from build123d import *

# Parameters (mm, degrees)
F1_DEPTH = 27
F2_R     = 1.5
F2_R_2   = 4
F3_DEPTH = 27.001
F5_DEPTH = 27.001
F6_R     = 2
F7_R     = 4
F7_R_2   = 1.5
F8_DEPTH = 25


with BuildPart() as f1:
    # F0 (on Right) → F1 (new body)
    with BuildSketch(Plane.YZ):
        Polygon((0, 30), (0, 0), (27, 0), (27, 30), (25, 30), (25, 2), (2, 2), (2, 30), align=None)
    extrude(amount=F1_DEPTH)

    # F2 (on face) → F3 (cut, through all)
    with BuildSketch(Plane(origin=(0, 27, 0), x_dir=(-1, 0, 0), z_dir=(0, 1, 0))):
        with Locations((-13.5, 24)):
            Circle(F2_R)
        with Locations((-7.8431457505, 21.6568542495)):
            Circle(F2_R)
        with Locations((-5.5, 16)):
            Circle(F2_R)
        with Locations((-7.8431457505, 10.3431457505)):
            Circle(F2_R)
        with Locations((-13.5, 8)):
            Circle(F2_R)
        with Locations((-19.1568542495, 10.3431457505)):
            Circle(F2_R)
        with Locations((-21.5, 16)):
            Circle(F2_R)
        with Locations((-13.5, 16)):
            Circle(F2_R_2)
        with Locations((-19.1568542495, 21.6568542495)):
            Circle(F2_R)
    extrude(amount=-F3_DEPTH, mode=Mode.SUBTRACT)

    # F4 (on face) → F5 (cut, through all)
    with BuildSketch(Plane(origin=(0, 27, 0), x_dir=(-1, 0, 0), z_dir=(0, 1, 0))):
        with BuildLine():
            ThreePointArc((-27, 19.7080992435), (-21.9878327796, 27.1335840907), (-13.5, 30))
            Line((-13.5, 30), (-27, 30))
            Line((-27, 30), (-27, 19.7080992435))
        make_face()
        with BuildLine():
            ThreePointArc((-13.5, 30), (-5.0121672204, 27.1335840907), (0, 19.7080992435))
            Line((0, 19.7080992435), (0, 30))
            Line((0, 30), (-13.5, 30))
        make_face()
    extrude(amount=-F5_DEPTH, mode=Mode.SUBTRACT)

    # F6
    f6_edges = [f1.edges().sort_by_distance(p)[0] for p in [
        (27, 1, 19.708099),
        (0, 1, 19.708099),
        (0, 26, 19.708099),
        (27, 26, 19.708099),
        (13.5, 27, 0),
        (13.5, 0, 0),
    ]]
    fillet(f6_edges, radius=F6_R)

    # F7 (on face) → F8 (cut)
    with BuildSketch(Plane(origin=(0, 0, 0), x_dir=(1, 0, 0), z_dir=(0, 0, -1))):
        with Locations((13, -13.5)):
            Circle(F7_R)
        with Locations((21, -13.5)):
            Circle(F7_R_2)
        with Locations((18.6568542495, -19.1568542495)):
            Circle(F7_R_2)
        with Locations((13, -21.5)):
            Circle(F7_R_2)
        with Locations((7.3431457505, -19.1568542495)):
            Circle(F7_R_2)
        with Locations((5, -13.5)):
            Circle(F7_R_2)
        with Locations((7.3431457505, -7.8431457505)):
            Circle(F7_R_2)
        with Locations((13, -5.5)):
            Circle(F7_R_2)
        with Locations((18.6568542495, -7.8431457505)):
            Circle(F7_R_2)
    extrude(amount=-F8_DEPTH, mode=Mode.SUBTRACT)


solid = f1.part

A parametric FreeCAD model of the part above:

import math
import FreeCAD as App
import Part
import Sketcher

V = App.Vector


def edges_at(feature, points):
    """Names of the edges that pass closest to the given points."""
    edges = feature.Shape.Edges
    near = lambda p: min(range(len(edges)), key=lambda i: edges[i].distToShape(Part.Vertex(*p))[0])
    return sorted({f"Edge{near(p) + 1}" for p in points})


def add_polygon(sketch, points):
    """Adds a closed chain of lines whose ends are joined by coincident constraints."""
    first, n = sketch.GeometryCount, len(points)
    for a, b in zip(points, points[1:] + points[:1]):
        sketch.addGeometry(Part.LineSegment(App.Vector(*a, 0), App.Vector(*b, 0)), False)
    for i in range(n):
        sketch.addConstraint(Sketcher.Constraint("Coincident", first + i, 2, first + (i + 1) % n, 1))

doc = App.newDocument("Part")
body = doc.addObject("PartDesign::Body", "Body")

# Sketch on YZ plane
sketch1 = body.newObject("Sketcher::SketchObject", "Sketch")
sketch1.AttachmentSupport = (doc.getObject("YZ_Plane"), [""])
sketch1.MapMode = "FlatFace"
add_polygon(sketch1, [(0, 30), (0, 0), (27, 0), (27, 30), (25, 30), (25, 2), (2, 2), (2, 30)])  # lines 0-7
sketch1.addConstraint([
    Sketcher.Constraint("Vertical", 0),
    Sketcher.Constraint("Horizontal", 1),
    Sketcher.Constraint("Vertical", 2),
    Sketcher.Constraint("Horizontal", 3),
    Sketcher.Constraint("Vertical", 4),
    Sketcher.Constraint("Horizontal", 5),
    Sketcher.Constraint("Vertical", 6),
    Sketcher.Constraint("Horizontal", 7),
    Sketcher.Constraint("Coincident", 0, 2, -1, 1),
    Sketcher.Constraint("Horizontal", 3, 2, 6, 2),
    Sketcher.Constraint("Equal", 3, 7),
    Sketcher.Constraint("DistanceX", 1, 1, 1, 2, 27.0),
    Sketcher.Constraint("DistanceX", 3, 2, 3, 1, 2.0),
    Sketcher.Constraint("DistanceY", 0, 2, 0, 1, 30.0),
    Sketcher.Constraint("DistanceY", 4, 2, 4, 1, 28.0),
])
pad1 = body.newObject("PartDesign::Pad", "Pad")
pad1.Profile = sketch1
pad1.Length = 27

# Sketch on XZ plane
sketch2 = body.newObject("Sketcher::SketchObject", "Sketch001")
sketch2.AttachmentSupport = (doc.getObject("XZ_Plane"), [""])
sketch2.MapMode = "FlatFace"
sketch2.AttachmentOffset = App.Placement(V(0, 0, -27), App.Rotation())
sketch2.addGeometry([
    Part.Circle(V(13.5, 24, 0), V(0, 0, 1), 1.5),  # 0
    Part.Circle(V(7.8, 21.7, 0), V(0, 0, 1), 1.5),  # 1
    Part.Circle(V(5.5, 16, 0), V(0, 0, 1), 1.5),  # 2
    Part.Circle(V(7.8, 10.3, 0), V(0, 0, 1), 1.5),  # 3
    Part.Circle(V(13.5, 8, 0), V(0, 0, 1), 1.5),  # 4
    Part.Circle(V(19.2, 10.3, 0), V(0, 0, 1), 1.5),  # 5
    Part.Circle(V(21.5, 16, 0), V(0, 0, 1), 1.5),  # 6
    Part.Circle(V(13.5, 16, 0), V(0, 0, 1), 4),  # 7
    Part.Circle(V(19.2, 21.7, 0), V(0, 0, 1), 1.5),  # 8
], False)
sketch2.addConstraint([
    Sketcher.Constraint("Equal", 0, 1),
    Sketcher.Constraint("Equal", 1, 2),
    Sketcher.Constraint("Equal", 2, 3),
    Sketcher.Constraint("Equal", 3, 4),
    Sketcher.Constraint("Equal", 4, 5),
    Sketcher.Constraint("Equal", 5, 6),
    Sketcher.Constraint("Equal", 6, 8),
    Sketcher.Constraint("Horizontal", 3, 3, 5, 3),
    Sketcher.Constraint("Horizontal", 2, 3, 6, 3),
    Sketcher.Constraint("Horizontal", 6, 3, 7, 3),
    Sketcher.Constraint("Horizontal", 1, 3, 8, 3),
    Sketcher.Constraint("Vertical", 1, 3, 3, 3),
    Sketcher.Constraint("Vertical", 0, 3, 4, 3),
    Sketcher.Constraint("Vertical", 4, 3, 7, 3),
    Sketcher.Constraint("Vertical", 5, 3, 8, 3),
    Sketcher.Constraint("Diameter", 0, 3.0),
    Sketcher.Constraint("Diameter", 7, 8.0),
    Sketcher.Constraint("DistanceY", -1, 1, 0, 3, 24.0),
    Sketcher.Constraint("DistanceY", -1, 1, 2, 3, 16.0),
    Sketcher.Constraint("DistanceY", -1, 1, 4, 3, 8.0),
    Sketcher.Constraint("DistanceX", 2, 3, 0, 3, 8.0),
    Sketcher.Constraint("DistanceX", 0, 3, 6, 3, 8.0),
    Sketcher.Constraint("DistanceX", -1, 1, 0, 3, 13.5),
    Sketcher.Constraint("DistanceY", 3, 3, 1, 3, 11.313708),
    Sketcher.Constraint("DistanceX", 3, 3, 5, 3, 11.313708),
    Sketcher.Constraint("DistanceX", -1, 1, 1, 3, 7.843146),
    Sketcher.Constraint("DistanceY", -1, 1, 1, 3, 21.656854),
])
pocket1 = body.newObject("PartDesign::Pocket", "Pocket")
pocket1.Profile = sketch2
pocket1.Type = "ThroughAll"
pocket1.Reversed = True

# Sketch on XZ plane
sketch3 = body.newObject("Sketcher::SketchObject", "Sketch002")
sketch3.AttachmentSupport = (doc.getObject("XZ_Plane"), [""])
sketch3.MapMode = "FlatFace"
sketch3.AttachmentOffset = App.Placement(V(0, 0, -27), App.Rotation())
sketch3.addGeometry([
    Part.ArcOfCircle(Part.Circle(V(14, 16, 0), V(0, 0, 1), 14), math.radians(15), math.radians(90)),  # 0
    Part.LineSegment(V(14, 30, 0), V(27, 30, 0)),  # 1
    Part.LineSegment(V(27, 30, 0), V(27, 20, 0)),  # 2
    Part.ArcOfCircle(Part.Circle(V(14, 16, 0), V(0, 0, 1), 14), math.radians(90), math.radians(165)),  # 3
    Part.LineSegment(V(0, 20, 0), V(0, 30, 0)),  # 4
    Part.LineSegment(V(0, 30, 0), V(14, 30, 0)),  # 5
], False)
sketch3.addConstraint([
    Sketcher.Constraint("Tangent", 0, 2, 1, 1),
    Sketcher.Constraint("Coincident", 1, 2, 2, 1),
    Sketcher.Constraint("Coincident", 2, 2, 0, 1),
    Sketcher.Constraint("Coincident", 3, 2, 4, 1),
    Sketcher.Constraint("Coincident", 4, 2, 5, 1),
    Sketcher.Constraint("Tangent", 5, 2, 3, 1),
    Sketcher.Constraint("Horizontal", 1),
    Sketcher.Constraint("Vertical", 2),
    Sketcher.Constraint("Vertical", 4),
    Sketcher.Constraint("Horizontal", 5),
    Sketcher.Constraint("Coincident", 3, 3, 0, 3),
    Sketcher.Constraint("Equal", 0, 3),
    Sketcher.Constraint("PointOnObject", 3, 2, -2),
    Sketcher.Constraint("Horizontal", 2, 2, 3, 2),
    Sketcher.Constraint("Radius", 0, 14.0),
    Sketcher.Constraint("DistanceX", 1, 1, 1, 2, 13.5),
    Sketcher.Constraint("DistanceY", -1, 1, 0, 3, 16.0),
])
pocket2 = body.newObject("PartDesign::Pocket", "Pocket001")
pocket2.Profile = sketch3
pocket2.Type = "ThroughAll"
pocket2.Reversed = True
doc.recompute()

fillet = body.newObject("PartDesign::Fillet", "Fillet")
fillet.Base = (pocket2, edges_at(pocket2, [
    (27, 1, 19.708),
    (0, 1, 19.708),
    (0, 26, 19.708),
    (27, 26, 19.708),
    (13.5, 27, 0),
    (13.5, 0, 0),
]))
fillet.Radius = 2

# Sketch on XY plane
sketch4 = body.newObject("Sketcher::SketchObject", "Sketch003")
sketch4.AttachmentSupport = (doc.getObject("XY_Plane"), [""])
sketch4.MapMode = "FlatFace"
sketch4.addGeometry([
    Part.Circle(V(13, 13.5, 0), V(0, 0, 1), 4),  # 0
    Part.Circle(V(21, 13.5, 0), V(0, 0, 1), 1.5),  # 1
    Part.Circle(V(18.7, 19.2, 0), V(0, 0, 1), 1.5),  # 2
    Part.Circle(V(13, 21.5, 0), V(0, 0, 1), 1.5),  # 3
    Part.Circle(V(7.3, 19.2, 0), V(0, 0, 1), 1.5),  # 4
    Part.Circle(V(5, 13.5, 0), V(0, 0, 1), 1.5),  # 5
    Part.Circle(V(7.3, 7.8, 0), V(0, 0, 1), 1.5),  # 6
    Part.Circle(V(13, 5.5, 0), V(0, 0, 1), 1.5),  # 7
    Part.Circle(V(18.7, 7.8, 0), V(0, 0, 1), 1.5),  # 8
], False)
sketch4.addConstraint([
    Sketcher.Constraint("Equal", 1, 2),
    Sketcher.Constraint("Equal", 2, 3),
    Sketcher.Constraint("Equal", 3, 4),
    Sketcher.Constraint("Equal", 4, 5),
    Sketcher.Constraint("Equal", 5, 6),
    Sketcher.Constraint("Equal", 6, 7),
    Sketcher.Constraint("Equal", 7, 8),
    Sketcher.Constraint("Horizontal", 0, 3, 1, 3),
    Sketcher.Constraint("Horizontal", 2, 3, 4, 3),
    Sketcher.Constraint("Horizontal", 1, 3, 5, 3),
    Sketcher.Constraint("Horizontal", 6, 3, 8, 3),
    Sketcher.Constraint("Vertical", 0, 3, 3, 3),
    Sketcher.Constraint("Vertical", 4, 3, 6, 3),
    Sketcher.Constraint("Vertical", 3, 3, 7, 3),
    Sketcher.Constraint("Vertical", 2, 3, 8, 3),
    Sketcher.Constraint("Diameter", 0, 8.0),
    Sketcher.Constraint("Diameter", 1, 3.0),
    Sketcher.Constraint("DistanceX", -1, 1, 0, 3, 13.0),
    Sketcher.Constraint("DistanceX", -1, 1, 1, 3, 21.0),
    Sketcher.Constraint("DistanceX", -1, 1, 5, 3, 5.0),
    Sketcher.Constraint("DistanceY", 0, 3, 3, 3, 8.0),
    Sketcher.Constraint("DistanceY", 7, 3, 0, 3, 8.0),
    Sketcher.Constraint("DistanceY", -1, 1, 0, 3, 13.5),
    Sketcher.Constraint("DistanceX", 4, 3, 2, 3, 11.313708),
    Sketcher.Constraint("DistanceY", 6, 3, 4, 3, 11.313708),
    Sketcher.Constraint("DistanceX", -1, 1, 2, 3, 18.656854),
    Sketcher.Constraint("DistanceY", -1, 1, 2, 3, 19.156854),
])
pocket3 = body.newObject("PartDesign::Pocket", "Pocket002")
pocket3.Profile = sketch4
pocket3.Length = 25
pocket3.Reversed = True

doc.recompute()
